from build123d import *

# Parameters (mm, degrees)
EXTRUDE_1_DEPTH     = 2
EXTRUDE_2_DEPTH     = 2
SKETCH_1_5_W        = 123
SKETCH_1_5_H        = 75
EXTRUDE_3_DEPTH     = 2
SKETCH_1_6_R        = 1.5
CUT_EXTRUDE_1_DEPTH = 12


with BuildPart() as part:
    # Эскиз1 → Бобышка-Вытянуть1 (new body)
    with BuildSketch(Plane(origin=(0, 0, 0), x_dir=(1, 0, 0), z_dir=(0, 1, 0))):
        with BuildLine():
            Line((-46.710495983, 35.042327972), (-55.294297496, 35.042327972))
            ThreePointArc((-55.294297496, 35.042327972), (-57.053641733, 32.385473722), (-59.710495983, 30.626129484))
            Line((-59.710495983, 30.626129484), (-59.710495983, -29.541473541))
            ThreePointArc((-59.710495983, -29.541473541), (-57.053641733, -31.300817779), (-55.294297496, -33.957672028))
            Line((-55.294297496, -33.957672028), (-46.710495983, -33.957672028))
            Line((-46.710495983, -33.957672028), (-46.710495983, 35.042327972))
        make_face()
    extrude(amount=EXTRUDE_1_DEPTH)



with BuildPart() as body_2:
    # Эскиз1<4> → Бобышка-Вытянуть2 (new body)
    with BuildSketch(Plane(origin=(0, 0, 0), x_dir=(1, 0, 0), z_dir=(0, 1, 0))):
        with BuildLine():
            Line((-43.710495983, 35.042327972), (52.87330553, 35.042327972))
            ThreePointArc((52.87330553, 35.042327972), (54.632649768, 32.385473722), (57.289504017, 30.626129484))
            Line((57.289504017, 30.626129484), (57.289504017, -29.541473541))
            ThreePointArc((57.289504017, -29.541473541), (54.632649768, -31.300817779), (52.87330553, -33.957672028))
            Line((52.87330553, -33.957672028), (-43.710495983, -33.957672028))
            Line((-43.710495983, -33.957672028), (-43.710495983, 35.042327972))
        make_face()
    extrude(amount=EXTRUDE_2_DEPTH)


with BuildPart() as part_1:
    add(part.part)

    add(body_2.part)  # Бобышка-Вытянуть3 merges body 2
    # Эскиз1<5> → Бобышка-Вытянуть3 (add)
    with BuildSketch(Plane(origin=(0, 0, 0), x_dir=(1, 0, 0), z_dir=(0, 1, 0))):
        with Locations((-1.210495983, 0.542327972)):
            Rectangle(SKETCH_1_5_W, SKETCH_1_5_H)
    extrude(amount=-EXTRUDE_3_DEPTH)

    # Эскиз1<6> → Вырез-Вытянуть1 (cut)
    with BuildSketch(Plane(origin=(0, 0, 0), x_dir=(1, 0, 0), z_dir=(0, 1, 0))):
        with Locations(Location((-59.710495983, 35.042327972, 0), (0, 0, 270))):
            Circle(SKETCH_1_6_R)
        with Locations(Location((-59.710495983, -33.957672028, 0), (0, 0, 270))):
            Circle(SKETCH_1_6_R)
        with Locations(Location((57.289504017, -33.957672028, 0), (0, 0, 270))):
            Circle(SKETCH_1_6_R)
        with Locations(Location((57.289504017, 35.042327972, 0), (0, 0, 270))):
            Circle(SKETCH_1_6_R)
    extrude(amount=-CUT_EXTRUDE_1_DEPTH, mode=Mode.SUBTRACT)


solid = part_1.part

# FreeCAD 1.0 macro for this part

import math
import FreeCAD as App
import Part
import Sketcher

V = App.Vector
Q = App.Units.Quantity


def add_polygon(sketch, points):
    """Adds a closed chain of lines whose ends are joined by coincident constraints."""
    first, n = sketch.GeometryCount, len(points)
    for a, b in zip(points, points[1:] + points[:1]):
        sketch.addGeometry(Part.LineSegment(App.Vector(*a, 0), App.Vector(*b, 0)), False)
    for i in range(n):
        sketch.addConstraint(Sketcher.Constraint("Coincident", first + i, 2, first + (i + 1) % n, 1))

doc = App.newDocument("Part")
params = doc.addObject("Spreadsheet::Sheet", "Params")
for row, (alias, value) in enumerate([
    ("sketch1_radius", "8 mm"),
    ("sketch1_height", "69 mm"),
    ("sketch1_width", "3 mm"),
    ("pad1_length", "2 mm"),
    ("sketch2_radius", "8 mm"),
    ("sketch2_height", "69 mm"),
    ("sketch2_width", "3 mm"),
    ("pad2_length", "2 mm"),
    ("sketch3_width", "123 mm"),
    ("sketch3_height", "75 mm"),
    ("pad3_length", "2 mm"),
    ("sketch4_diameter", "3 mm"),
    ("pocket1_length", "12 mm"),
], start=1):
    params.set(f"A{row}", alias)
    params.set(f"B{row}", "=" + value)
    params.setAlias(f"B{row}", alias)

body = doc.addObject("PartDesign::Body", "Body")

# Sketch on XZ plane
sketch1 = body.newObject("Sketcher::SketchObject", "Sketch")
sketch1.AttachmentSupport = (doc.getObject("XZ_Plane"), [""])
sketch1.MapMode = "FlatFace"
sketch1.addGeometry([
    Part.LineSegment(V(-46.710496, -35.042328, 0), V(-55.294297, -35.042328, 0)),  # 0
    Part.ArcOfCircle(Part.Circle(V(-62.710496, -38.042328, 0), V(0, 0, 1), 8), math.radians(22.024313), math.radians(67.975687)),  # 1
    Part.LineSegment(V(-59.710496, -30.626129, 0), V(-59.710496, 29.541474, 0)),  # 2
    Part.ArcOfCircle(Part.Circle(V(-62.710496, 36.957672, 0), V(0, 0, 1), 8), math.radians(-67.975687), math.radians(-22.024313)),  # 3
    Part.LineSegment(V(-55.294297, 33.957672, 0), V(-46.710496, 33.957672, 0)),  # 4
    Part.LineSegment(V(-46.710496, 33.957672, 0), V(-46.710496, -35.042328, 0)),  # 5
], False)
sketch1.addConstraint([
    Sketcher.Constraint("Coincident", 0, 2, 1, 1),
    Sketcher.Constraint("Coincident", 1, 2, 2, 1),
    Sketcher.Constraint("Coincident", 2, 2, 3, 1),
    Sketcher.Constraint("Coincident", 3, 2, 4, 1),
    Sketcher.Constraint("Coincident", 4, 2, 5, 1),
    Sketcher.Constraint("Coincident", 5, 2, 0, 1),
    Sketcher.Constraint("Horizontal", 0),
    Sketcher.Constraint("Vertical", 2),
    Sketcher.Constraint("Horizontal", 4),
    Sketcher.Constraint("Vertical", 5),
    Sketcher.Constraint("Equal", 1, 3),
    Sketcher.Constraint("Vertical", 1, 3, 3, 3),
    Sketcher.Constraint("Vertical", 0, 2, 3, 2),
    Sketcher.Constraint("Radius", 1, Q("8 mm")),
    Sketcher.Constraint("DistanceY", 5, 2, 5, 1, Q("69 mm")),
    Sketcher.Constraint("DistanceY", 1, 3, 3, 3, Q("75 mm")),
    Sketcher.Constraint("DistanceX", 1, 3, 1, 2, Q("3 mm")),
    Sketcher.Constraint("DistanceX", 2, 2, 4, 2, Q("13 mm")),
    Sketcher.Constraint("DistanceY", 1, 2, -1, 1, Q("30.626129 mm")),
    Sketcher.Constraint("DistanceX", 1, 3, -1, 1, Q("62.710496 mm")),
])
sketch1.setExpression("Constraints[13]", "Params.sketch1_radius")
sketch1.setExpression("Constraints[14]", "Params.sketch1_height")
sketch1.setExpression("Constraints[16]", "Params.sketch1_width")
pad1 = body.newObject("PartDesign::Pad", "Pad")
pad1.Profile = sketch1
pad1.setExpression("Length", "Params.pad1_length")
pad1.Reversed = True
body2 = doc.addObject("PartDesign::Body", "Body001")

# Sketch on XZ plane
sketch2 = body2.newObject("Sketcher::SketchObject", "Sketch001")
sketch2.AttachmentSupport = (doc.getObject("XZ_Plane001"), [""])
sketch2.MapMode = "FlatFace"
sketch2.addGeometry([
    Part.LineSegment(V(52.873306, -35.042328, 0), V(-43.710496, -35.042328, 0)),  # 0
    Part.LineSegment(V(-43.710496, -35.042328, 0), V(-43.710496, 33.957672, 0)),  # 1
    Part.LineSegment(V(-43.710496, 33.957672, 0), V(52.873306, 33.957672, 0)),  # 2
    Part.ArcOfCircle(Part.Circle(V(60.289504, 36.957672, 0), V(0, 0, 1), 8), math.radians(-157.975687), math.radians(-112.024313)),  # 3
    Part.LineSegment(V(57.289504, 29.541474, 0), V(57.289504, -30.626129, 0)),  # 4
    Part.ArcOfCircle(Part.Circle(V(60.289504, -38.042328, 0), V(0, 0, 1), 8), math.radians(112.024313), math.radians(157.975687)),  # 5
], False)
sketch2.addConstraint([
    Sketcher.Constraint("Coincident", 0, 2, 1, 1),
    Sketcher.Constraint("Coincident", 1, 2, 2, 1),
    Sketcher.Constraint("Coincident", 2, 2, 3, 1),
    Sketcher.Constraint("Coincident", 3, 2, 4, 1),
    Sketcher.Constraint("Coincident", 4, 2, 5, 1),
    Sketcher.Constraint("Coincident", 5, 2, 0, 1),
    Sketcher.Constraint("Horizontal", 0),
    Sketcher.Constraint("Vertical", 1),
    Sketcher.Constraint("Horizontal", 2),
    Sketcher.Constraint("Vertical", 4),
    Sketcher.Constraint("Equal", 3, 5),
    Sketcher.Constraint("Vertical", 3, 3, 5, 3),
    Sketcher.Constraint("Vertical", 2, 2, 5, 2),
    Sketcher.Constraint("Radius", 3, Q("8 mm")),
    Sketcher.Constraint("DistanceY", 1, 1, 1, 2, Q("69 mm")),
    Sketcher.Constraint("DistanceY", 5, 3, 3, 3, Q("75 mm")),
    Sketcher.Constraint("DistanceX", 0, 2, 5, 3, Q("104 mm")),
    Sketcher.Constraint("DistanceX", 3, 2, 3, 3, Q("3 mm")),
    Sketcher.Constraint("DistanceY", 4, 2, -1, 1, Q("30.626129 mm")),
    Sketcher.Constraint("DistanceX", -1, 1, 3, 3, Q("60.289504 mm")),
])
sketch2.setExpression("Constraints[13]", "Params.sketch2_radius")
sketch2.setExpression("Constraints[14]", "Params.sketch2_height")
sketch2.setExpression("Constraints[17]", "Params.sketch2_width")
pad2 = body2.newObject("PartDesign::Pad", "Pad001")
pad2.Profile = sketch2
pad2.setExpression("Length", "Params.pad2_length")
pad2.Reversed = True
body.AllowCompound = True
doc.recompute()

boolean = body.newObject("PartDesign::Boolean", "Boolean")
boolean.Type = "Fuse"
boolean.addObjects([body2])

# Sketch on XZ plane
sketch3 = body.newObject("Sketcher::SketchObject", "Sketch002")
sketch3.AttachmentSupport = (doc.getObject("XZ_Plane"), [""])
sketch3.MapMode = "FlatFace"
add_polygon(sketch3, [(-62.710496, -38.042328), (-62.710496, 36.957672), (60.289504, 36.957672), (60.289504, -38.042328)])  # lines 0-3
sketch3.addConstraint([
    Sketcher.Constraint("Vertical", 0),
    Sketcher.Constraint("Horizontal", 1),
    Sketcher.Constraint("Vertical", 2),
    Sketcher.Constraint("Horizontal", 3),
    Sketcher.Constraint("DistanceX", 1, 1, 1, 2, Q("123 mm")),
    Sketcher.Constraint("DistanceY", 0, 1, 0, 2, Q("75 mm")),
    Sketcher.Constraint("DistanceX", 0, 2, -1, 1, Q("62.710496 mm")),
    Sketcher.Constraint("DistanceY", -1, 1, 0, 2, Q("36.957672 mm")),
])
sketch3.setExpression("Constraints[8]", "Params.sketch3_width")
sketch3.setExpression("Constraints[9]", "Params.sketch3_height")
pad3 = body.newObject("PartDesign::Pad", "Pad002")
pad3.Profile = sketch3
pad3.setExpression("Length", "Params.pad3_length")

# Sketch on XZ plane
sketch4 = body.newObject("Sketcher::SketchObject", "Sketch003")
sketch4.AttachmentSupport = (doc.getObject("XZ_Plane"), [""])
sketch4.MapMode = "FlatFace"
sketch4.addGeometry([
    Part.Circle(V(-59.710496, -35.042328, 0), V(0, 0, 1), 1.5),
    Part.Circle(V(-59.710496, 33.957672, 0), V(0, 0, 1), 1.5),
    Part.Circle(V(57.289504, 33.957672, 0), V(0, 0, 1), 1.5),
    Part.Circle(V(57.289504, -35.042328, 0), V(0, 0, 1), 1.5),
], False)
sketch4.addConstraint([
    Sketcher.Constraint("Equal", 0, 1),
    Sketcher.Constraint("Equal", 1, 2),
    Sketcher.Constraint("Equal", 2, 3),
    Sketcher.Constraint("Horizontal", 1, 3, 2, 3),
    Sketcher.Constraint("Horizontal", 0, 3, 3, 3),
    Sketcher.Constraint("Vertical", 0, 3, 1, 3),
    Sketcher.Constraint("Vertical", 2, 3, 3, 3),
    Sketcher.Constraint("Diameter", 0, Q("3 mm")),
    Sketcher.Constraint("DistanceY", 0, 3, 1, 3, Q("69 mm")),
    Sketcher.Constraint("DistanceX", 1, 3, 2, 3, Q("117 mm")),
    Sketcher.Constraint("DistanceX", 0, 3, -1, 1, Q("59.710496 mm")),
    Sketcher.Constraint("DistanceY", 0, 3, -1, 1, Q("35.042328 mm")),
])
sketch4.setExpression("Constraints[7]", "Params.sketch4_diameter")
pocket1 = body.newObject("PartDesign::Pocket", "Pocket")
pocket1.Profile = sketch4
pocket1.setExpression("Length", "Params.pocket1_length")
pocket1.Reversed = True

doc.recompute()
